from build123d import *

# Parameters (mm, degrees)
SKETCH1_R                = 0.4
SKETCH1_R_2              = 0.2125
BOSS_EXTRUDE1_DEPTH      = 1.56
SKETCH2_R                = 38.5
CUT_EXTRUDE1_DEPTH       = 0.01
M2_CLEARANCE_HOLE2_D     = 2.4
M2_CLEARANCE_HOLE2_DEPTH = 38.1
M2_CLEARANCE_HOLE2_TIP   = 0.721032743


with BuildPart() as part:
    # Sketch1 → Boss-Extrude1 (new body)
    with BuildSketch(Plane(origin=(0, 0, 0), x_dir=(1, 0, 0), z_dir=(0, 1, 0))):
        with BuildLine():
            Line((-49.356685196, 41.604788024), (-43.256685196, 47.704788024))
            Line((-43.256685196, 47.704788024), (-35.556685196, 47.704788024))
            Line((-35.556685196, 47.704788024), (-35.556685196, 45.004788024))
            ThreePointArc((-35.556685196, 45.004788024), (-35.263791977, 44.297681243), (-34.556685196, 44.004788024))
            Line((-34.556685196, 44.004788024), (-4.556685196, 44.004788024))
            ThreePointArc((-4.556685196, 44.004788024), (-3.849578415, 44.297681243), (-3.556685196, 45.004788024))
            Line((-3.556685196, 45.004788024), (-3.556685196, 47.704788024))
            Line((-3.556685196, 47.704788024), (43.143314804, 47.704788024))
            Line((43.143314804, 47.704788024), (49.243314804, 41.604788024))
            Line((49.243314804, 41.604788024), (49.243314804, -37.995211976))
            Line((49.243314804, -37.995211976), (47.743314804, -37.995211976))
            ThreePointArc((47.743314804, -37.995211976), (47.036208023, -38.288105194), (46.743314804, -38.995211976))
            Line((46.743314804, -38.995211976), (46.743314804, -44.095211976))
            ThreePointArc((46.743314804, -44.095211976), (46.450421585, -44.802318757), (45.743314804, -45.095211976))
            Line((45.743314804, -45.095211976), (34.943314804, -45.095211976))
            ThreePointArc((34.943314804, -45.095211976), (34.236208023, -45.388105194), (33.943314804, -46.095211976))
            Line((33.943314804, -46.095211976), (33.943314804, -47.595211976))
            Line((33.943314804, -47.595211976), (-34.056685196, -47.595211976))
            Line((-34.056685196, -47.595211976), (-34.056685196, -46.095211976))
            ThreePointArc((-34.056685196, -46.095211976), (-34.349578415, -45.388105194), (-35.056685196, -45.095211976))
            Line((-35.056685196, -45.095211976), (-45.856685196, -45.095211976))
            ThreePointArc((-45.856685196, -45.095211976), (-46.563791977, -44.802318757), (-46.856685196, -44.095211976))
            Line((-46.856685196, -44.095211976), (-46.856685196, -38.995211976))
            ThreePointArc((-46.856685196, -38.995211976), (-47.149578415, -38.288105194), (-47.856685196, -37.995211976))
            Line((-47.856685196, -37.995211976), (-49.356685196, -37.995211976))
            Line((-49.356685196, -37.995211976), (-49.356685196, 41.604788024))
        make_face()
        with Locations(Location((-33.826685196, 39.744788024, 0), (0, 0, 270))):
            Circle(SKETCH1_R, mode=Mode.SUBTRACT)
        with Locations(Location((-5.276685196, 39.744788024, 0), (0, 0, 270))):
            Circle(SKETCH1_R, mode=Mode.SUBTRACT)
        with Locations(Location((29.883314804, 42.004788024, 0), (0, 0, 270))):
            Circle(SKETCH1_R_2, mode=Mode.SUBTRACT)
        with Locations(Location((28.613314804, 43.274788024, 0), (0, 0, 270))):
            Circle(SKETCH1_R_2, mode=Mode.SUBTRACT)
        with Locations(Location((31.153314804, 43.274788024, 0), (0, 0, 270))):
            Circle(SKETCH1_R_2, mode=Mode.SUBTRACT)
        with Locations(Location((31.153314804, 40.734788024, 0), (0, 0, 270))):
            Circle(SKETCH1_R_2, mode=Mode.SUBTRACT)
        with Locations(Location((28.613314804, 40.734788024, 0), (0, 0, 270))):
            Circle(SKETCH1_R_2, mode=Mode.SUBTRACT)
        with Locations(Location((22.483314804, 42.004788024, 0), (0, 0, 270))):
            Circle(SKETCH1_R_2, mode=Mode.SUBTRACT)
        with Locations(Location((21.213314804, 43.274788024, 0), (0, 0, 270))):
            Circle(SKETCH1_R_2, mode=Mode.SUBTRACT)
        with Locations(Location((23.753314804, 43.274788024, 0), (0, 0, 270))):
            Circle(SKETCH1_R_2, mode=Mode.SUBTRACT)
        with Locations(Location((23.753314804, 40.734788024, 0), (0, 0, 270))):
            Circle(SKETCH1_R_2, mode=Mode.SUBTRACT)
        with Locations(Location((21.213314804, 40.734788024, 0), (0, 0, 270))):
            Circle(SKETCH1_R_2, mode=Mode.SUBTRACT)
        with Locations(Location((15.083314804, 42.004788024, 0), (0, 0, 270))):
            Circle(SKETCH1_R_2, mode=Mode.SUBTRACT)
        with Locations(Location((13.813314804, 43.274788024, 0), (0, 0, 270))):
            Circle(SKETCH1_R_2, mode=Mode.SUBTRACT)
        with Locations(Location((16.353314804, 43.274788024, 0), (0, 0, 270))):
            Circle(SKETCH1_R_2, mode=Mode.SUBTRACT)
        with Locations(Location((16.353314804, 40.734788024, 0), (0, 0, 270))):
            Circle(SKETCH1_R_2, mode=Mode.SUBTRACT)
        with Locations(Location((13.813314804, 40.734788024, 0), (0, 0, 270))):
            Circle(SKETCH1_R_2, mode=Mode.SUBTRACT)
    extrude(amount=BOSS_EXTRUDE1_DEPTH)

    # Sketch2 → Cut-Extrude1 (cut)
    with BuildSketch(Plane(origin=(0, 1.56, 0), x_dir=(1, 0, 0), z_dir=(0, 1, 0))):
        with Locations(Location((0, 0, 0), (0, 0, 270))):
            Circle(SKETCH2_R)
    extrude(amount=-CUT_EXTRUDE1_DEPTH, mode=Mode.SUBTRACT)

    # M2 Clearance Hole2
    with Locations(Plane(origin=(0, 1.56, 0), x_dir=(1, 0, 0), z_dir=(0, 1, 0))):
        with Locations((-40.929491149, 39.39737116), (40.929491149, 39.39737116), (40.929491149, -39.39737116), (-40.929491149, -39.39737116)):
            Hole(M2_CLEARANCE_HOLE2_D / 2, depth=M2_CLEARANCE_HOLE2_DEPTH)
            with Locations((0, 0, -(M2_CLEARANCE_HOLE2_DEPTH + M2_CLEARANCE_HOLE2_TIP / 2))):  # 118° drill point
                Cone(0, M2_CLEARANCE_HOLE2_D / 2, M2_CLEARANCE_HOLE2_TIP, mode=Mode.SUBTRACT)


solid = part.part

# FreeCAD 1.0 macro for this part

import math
import FreeCAD as App
import Part
import Sketcher

doc = App.newDocument("Part")
body = doc.addObject("PartDesign::Body", "Body")

# Sketch on XZ plane
sketch1 = doc.addObject("Sketcher::SketchObject", "Sketch")
body.addObject(sketch1)
sketch1.AttachmentSupport = (doc.XZ_Plane, [""])
sketch1.MapMode = "FlatFace"
sketch1.addGeometry([
    Part.LineSegment(App.Vector(-43.26, -47.7, 0), App.Vector(-49.36, -41.6, 0)),  # 0
    Part.LineSegment(App.Vector(-49.36, -41.6, 0), App.Vector(-49.36, 38, 0)),  # 1
    Part.LineSegment(App.Vector(-49.36, 38, 0), App.Vector(-47.86, 38, 0)),  # 2
    Part.ArcOfCircle(Part.Circle(App.Vector(-47.86, 39, 0), App.Vector(0, 0, 1), 1), math.radians(-90), math.radians(0)),  # 3
    Part.LineSegment(App.Vector(-46.86, 39, 0), App.Vector(-46.86, 44.1, 0)),  # 4
    Part.ArcOfCircle(Part.Circle(App.Vector(-45.86, 44.1, 0), App.Vector(0, 0, 1), 1), math.radians(90), math.radians(180)),  # 5
    Part.LineSegment(App.Vector(-45.86, 45.1, 0), App.Vector(-35.06, 45.1, 0)),  # 6
    Part.ArcOfCircle(Part.Circle(App.Vector(-35.06, 46.1, 0), App.Vector(0, 0, 1), 1), math.radians(-90), math.radians(0)),  # 7
    Part.LineSegment(App.Vector(-34.06, 46.1, 0), App.Vector(-34.06, 47.6, 0)),  # 8
    Part.LineSegment(App.Vector(-34.06, 47.6, 0), App.Vector(33.94, 47.6, 0)),  # 9
    Part.LineSegment(App.Vector(33.94, 47.6, 0), App.Vector(33.94, 46.1, 0)),  # 10
    Part.ArcOfCircle(Part.Circle(App.Vector(34.94, 46.1, 0), App.Vector(0, 0, 1), 1), math.radians(180), math.radians(270)),  # 11
    Part.LineSegment(App.Vector(34.94, 45.1, 0), App.Vector(45.74, 45.1, 0)),  # 12
    Part.ArcOfCircle(Part.Circle(App.Vector(45.74, 44.1, 0), App.Vector(0, 0, 1), 1), math.radians(0), math.radians(90)),  # 13
    Part.LineSegment(App.Vector(46.74, 44.1, 0), App.Vector(46.74, 39, 0)),  # 14
    Part.ArcOfCircle(Part.Circle(App.Vector(47.74, 39, 0), App.Vector(0, 0, 1), 1), math.radians(180), math.radians(270)),  # 15
    Part.LineSegment(App.Vector(47.74, 38, 0), App.Vector(49.24, 38, 0)),  # 16
    Part.LineSegment(App.Vector(49.24, 38, 0), App.Vector(49.24, -41.6, 0)),  # 17
    Part.LineSegment(App.Vector(49.24, -41.6, 0), App.Vector(43.14, -47.7, 0)),  # 18
    Part.LineSegment(App.Vector(43.14, -47.7, 0), App.Vector(-3.56, -47.7, 0)),  # 19
    Part.LineSegment(App.Vector(-3.56, -47.7, 0), App.Vector(-3.56, -45, 0)),  # 20
    Part.ArcOfCircle(Part.Circle(App.Vector(-4.56, -45, 0), App.Vector(0, 0, 1), 1), math.radians(0), math.radians(90)),  # 21
    Part.LineSegment(App.Vector(-4.56, -44, 0), App.Vector(-34.56, -44, 0)),  # 22
    Part.ArcOfCircle(Part.Circle(App.Vector(-34.56, -45, 0), App.Vector(0, 0, 1), 1), math.radians(90), math.radians(180)),  # 23
    Part.LineSegment(App.Vector(-35.56, -45, 0), App.Vector(-35.56, -47.7, 0)),  # 24
    Part.LineSegment(App.Vector(-35.56, -47.7, 0), App.Vector(-43.26, -47.7, 0)),  # 25
    Part.Circle(App.Vector(31.15, -40.73, 0), App.Vector(0, 0, 1), 0.21),  # 26
    Part.Circle(App.Vector(28.61, -40.73, 0), App.Vector(0, 0, 1), 0.21),  # 27
    Part.Circle(App.Vector(23.75, -40.73, 0), App.Vector(0, 0, 1), 0.21),  # 28
    Part.Circle(App.Vector(21.21, -40.73, 0), App.Vector(0, 0, 1), 0.21),  # 29
    Part.Circle(App.Vector(16.35, -40.73, 0), App.Vector(0, 0, 1), 0.21),  # 30
    Part.Circle(App.Vector(13.81, -40.73, 0), App.Vector(0, 0, 1), 0.21),  # 31
    Part.Circle(App.Vector(-5.28, -39.74, 0), App.Vector(0, 0, 1), 0.4),  # 32
    Part.Circle(App.Vector(-33.83, -39.74, 0), App.Vector(0, 0, 1), 0.4),  # 33
    Part.Circle(App.Vector(29.88, -42, 0), App.Vector(0, 0, 1), 0.21),  # 34
    Part.Circle(App.Vector(22.48, -42, 0), App.Vector(0, 0, 1), 0.21),  # 35
    Part.Circle(App.Vector(15.08, -42, 0), App.Vector(0, 0, 1), 0.21),  # 36
    Part.Circle(App.Vector(31.15, -43.27, 0), App.Vector(0, 0, 1), 0.21),  # 37
    Part.Circle(App.Vector(28.61, -43.27, 0), App.Vector(0, 0, 1), 0.21),  # 38
    Part.Circle(App.Vector(23.75, -43.27, 0), App.Vector(0, 0, 1), 0.21),  # 39
    Part.Circle(App.Vector(21.21, -43.27, 0), App.Vector(0, 0, 1), 0.21),  # 40
    Part.Circle(App.Vector(16.35, -43.27, 0), App.Vector(0, 0, 1), 0.21),  # 41
    Part.Circle(App.Vector(13.81, -43.27, 0), App.Vector(0, 0, 1), 0.21),  # 42
], False)
sketch1.addConstraint([
    Sketcher.Constraint("Coincident", 0, 2, 1, 1),
    Sketcher.Constraint("Coincident", 1, 2, 2, 1),
    Sketcher.Constraint("Tangent", 2, 2, 3, 1),
    Sketcher.Constraint("Tangent", 3, 2, 4, 1),
    Sketcher.Constraint("Tangent", 4, 2, 5, 2),
    Sketcher.Constraint("Tangent", 5, 1, 6, 1),
    Sketcher.Constraint("Tangent", 6, 2, 7, 1),
    Sketcher.Constraint("Tangent", 7, 2, 8, 1),
    Sketcher.Constraint("Coincident", 8, 2, 9, 1),
    Sketcher.Constraint("Coincident", 9, 2, 10, 1),
    Sketcher.Constraint("Tangent", 10, 2, 11, 1),
    Sketcher.Constraint("Tangent", 11, 2, 12, 1),
    Sketcher.Constraint("Tangent", 12, 2, 13, 2),
    Sketcher.Constraint("Tangent", 13, 1, 14, 1),
    Sketcher.Constraint("Tangent", 14, 2, 15, 1),
    Sketcher.Constraint("Tangent", 15, 2, 16, 1),
    Sketcher.Constraint("Coincident", 16, 2, 17, 1),
    Sketcher.Constraint("Coincident", 17, 2, 18, 1),
    Sketcher.Constraint("Coincident", 18, 2, 19, 1),
    Sketcher.Constraint("Coincident", 19, 2, 20, 1),
    Sketcher.Constraint("Tangent", 20, 2, 21, 1),
    Sketcher.Constraint("Tangent", 21, 2, 22, 1),
    Sketcher.Constraint("Tangent", 22, 2, 23, 1),
    Sketcher.Constraint("Tangent", 23, 2, 24, 1),
    Sketcher.Constraint("Coincident", 24, 2, 25, 1),
    Sketcher.Constraint("Coincident", 25, 2, 0, 1),
    Sketcher.Constraint("Vertical", 1),
    Sketcher.Constraint("Horizontal", 2),
    Sketcher.Constraint("Vertical", 4),
    Sketcher.Constraint("Horizontal", 6),
    Sketcher.Constraint("Vertical", 8),
    Sketcher.Constraint("Horizontal", 9),
    Sketcher.Constraint("Vertical", 10),
    Sketcher.Constraint("Horizontal", 12),
    Sketcher.Constraint("Vertical", 14),
    Sketcher.Constraint("Horizontal", 16),
    Sketcher.Constraint("Vertical", 17),
    Sketcher.Constraint("Horizontal", 19),
    Sketcher.Constraint("Vertical", 20),
    Sketcher.Constraint("Horizontal", 22),
    Sketcher.Constraint("Vertical", 24),
    Sketcher.Constraint("Horizontal", 25),
    Sketcher.Constraint("Equal", 3, 5),
    Sketcher.Constraint("Equal", 5, 7),
    Sketcher.Constraint("Equal", 7, 11),
    Sketcher.Constraint("Equal", 11, 13),
    Sketcher.Constraint("Equal", 13, 15),
    Sketcher.Constraint("Equal", 15, 21),
    Sketcher.Constraint("Equal", 21, 23),
    Sketcher.Constraint("Equal", 26, 27),
    Sketcher.Constraint("Equal", 27, 28),
    Sketcher.Constraint("Equal", 28, 29),
    Sketcher.Constraint("Equal", 29, 30),
    Sketcher.Constraint("Equal", 30, 31),
    Sketcher.Constraint("Equal", 32, 33),
    Sketcher.Constraint("Equal", 31, 34),
    Sketcher.Constraint("Equal", 34, 35),
    Sketcher.Constraint("Equal", 35, 36),
    Sketcher.Constraint("Equal", 36, 37),
    Sketcher.Constraint("Equal", 37, 38),
    Sketcher.Constraint("Equal", 38, 39),
    Sketcher.Constraint("Equal", 39, 40),
    Sketcher.Constraint("Equal", 40, 41),
    Sketcher.Constraint("Equal", 41, 42),
    Sketcher.Constraint("Perpendicular", 0, 18),
    Sketcher.Constraint("Horizontal", 7, 3, 11, 3),
    Sketcher.Constraint("Horizontal", 3, 3, 15, 3),
    Sketcher.Constraint("Horizontal", 26, 3, 27, 3),
    Sketcher.Constraint("Horizontal", 27, 3, 28, 3),
    Sketcher.Constraint("Horizontal", 28, 3, 29, 3),
    Sketcher.Constraint("Horizontal", 29, 3, 30, 3),
    Sketcher.Constraint("Horizontal", 30, 3, 31, 3),
    Sketcher.Constraint("Horizontal", 32, 3, 33, 3),
    Sketcher.Constraint("Horizontal", 34, 3, 35, 3),
    Sketcher.Constraint("Horizontal", 35, 3, 36, 3),
    Sketcher.Constraint("Horizontal", 37, 3, 38, 3),
    Sketcher.Constraint("Horizontal", 38, 3, 39, 3),
    Sketcher.Constraint("Horizontal", 39, 3, 40, 3),
    Sketcher.Constraint("Horizontal", 40, 3, 41, 3),
    Sketcher.Constraint("Horizontal", 41, 3, 42, 3),
    Sketcher.Constraint("Horizontal", 0, 2, 17, 2),
    Sketcher.Constraint("Horizontal", 19, 2, 24, 2),
    Sketcher.Constraint("Vertical", 26, 3, 37, 3),
    Sketcher.Constraint("Vertical", 27, 3, 38, 3),
    Sketcher.Constraint("Vertical", 28, 3, 39, 3),
    Sketcher.Constraint("Vertical", 29, 3, 40, 3),
    Sketcher.Constraint("Vertical", 30, 3, 41, 3),
    Sketcher.Constraint("Vertical", 31, 3, 42, 3),
    Sketcher.Constraint("Equal", 6, 12),
    Sketcher.Constraint("Equal", 2, 16),
    Sketcher.Constraint("Equal", 16, 8),
    Sketcher.Constraint("Equal", 0, 18),
    Sketcher.Constraint("Radius", 3, 1.0),
    Sketcher.Constraint("Diameter", 32, 0.8),
    Sketcher.Constraint("DistanceX", 9, 1, 9, 2, 68.0),
    Sketcher.Constraint("DistanceX", 22, 2, 22, 1, 30.0),
    Sketcher.Constraint("Diameter", 26, 0.425),
    Sketcher.Constraint("DistanceX", 2, 1, 2, 2, 1.5),
    Sketcher.Constraint("DistanceX", 6, 1, 6, 2, 10.8),
    Sketcher.Constraint("DistanceX", 19, 2, 19, 1, 46.7),
    Sketcher.Constraint("DistanceX", 25, 2, 25, 1, 7.7),
    Sketcher.Constraint("DistanceY", 1, 1, 1, 2, 79.6),
    Sketcher.Constraint("DistanceY", 4, 1, 4, 2, 5.1),
    Sketcher.Constraint("DistanceY", 20, 1, 20, 2, 2.7),
    Sketcher.Constraint("DistanceX", 28, 3, 26, 3, 7.4),
    Sketcher.Constraint("DistanceX", 29, 3, 27, 3, 7.4),
    Sketcher.Constraint("DistanceX", 30, 3, 28, 3, 7.4),
    Sketcher.Constraint("DistanceX", 31, 3, 29, 3, 7.4),
    Sketcher.Constraint("DistanceX", 35, 3, 34, 3, 7.4),
    Sketcher.Constraint("DistanceX", 36, 3, 35, 3, 7.4),
    Sketcher.Constraint("DistanceY", 34, 3, 17, 2, 0.4),
    Sketcher.Constraint("DistanceX", 21, 3, 26, 3, 35.71),
    Sketcher.Constraint("DistanceY", 21, 3, 26, 3, 4.27),
    Sketcher.Constraint("DistanceX", 27, 3, 26, 3, 2.54),
    Sketcher.Constraint("DistanceX", 32, 3, 21, 3, 0.72),
    Sketcher.Constraint("DistanceY", 21, 3, 32, 3, 5.26),
    Sketcher.Constraint("DistanceX", 23, 3, 33, 3, 0.73),
    Sketcher.Constraint("DistanceX", 34, 3, 26, 3, 1.27),
    Sketcher.Constraint("DistanceY", 37, 3, 34, 3, 1.27),
    Sketcher.Constraint("DistanceY", -1, 1, 3, 3, 38.995212),
    Sketcher.Constraint("DistanceX", 3, 3, -1, 1, 47.856685),
])
pad1 = doc.addObject("PartDesign::Pad", "Pad")
body.addObject(pad1)
pad1.Profile = sketch1
pad1.Length = 1.56
pad1.Reversed = True

# Sketch on XZ plane
sketch2 = doc.addObject("Sketcher::SketchObject", "Sketch001")
body.addObject(sketch2)
sketch2.AttachmentSupport = (doc.XZ_Plane, [""])
sketch2.MapMode = "FlatFace"
sketch2.AttachmentOffset = App.Placement(App.Vector(0, 0, -1.56), App.Rotation())
sketch2.addGeometry(Part.Circle(App.Vector(0, 0, 0), App.Vector(0, 0, 1), 38), False)
sketch2.addConstraint([
    Sketcher.Constraint("Coincident", 0, 3, -1, 1),
    Sketcher.Constraint("Diameter", 0, 77.0),
])
pocket1 = doc.addObject("PartDesign::Pocket", "Pocket")
body.addObject(pocket1)
pocket1.Profile = sketch2
pocket1.Length = 0.01
pocket1.Reversed = True

# Sketch on XZ plane
sketch3 = doc.addObject("Sketcher::SketchObject", "Sketch002")
body.addObject(sketch3)
sketch3.AttachmentSupport = (doc.XZ_Plane, [""])
sketch3.MapMode = "FlatFace"
sketch3.AttachmentOffset = App.Placement(App.Vector(0, 0, -1.56), App.Rotation())
sketch3.addGeometry([
    Part.Circle(App.Vector(-40.9, -39.4, 0), App.Vector(0, 0, 1), 1.2),
    Part.Circle(App.Vector(40.9, -39.4, 0), App.Vector(0, 0, 1), 1.2),
    Part.Circle(App.Vector(40.9, 39.4, 0), App.Vector(0, 0, 1), 1.2),
    Part.Circle(App.Vector(-40.9, 39.4, 0), App.Vector(0, 0, 1), 1.2),
], False)
sketch3.addConstraint([
    Sketcher.Constraint("Equal", 0, 1),
    Sketcher.Constraint("Equal", 1, 2),
    Sketcher.Constraint("Equal", 2, 3),
    Sketcher.Constraint("Symmetric", 0, 3, 2, 3, -1, 1),
    Sketcher.Constraint("Symmetric", 1, 3, 3, 3, -1, 1),
    Sketcher.Constraint("Symmetric", 0, 3, 1, 3, -2),
    Sketcher.Constraint("Diameter", 0, 2.4),
    Sketcher.Constraint("DistanceX", 0, 3, -1, 1, 40.929491),
    Sketcher.Constraint("DistanceY", 0, 3, -1, 1, 39.397371),
])
doc.recompute()
hole = doc.addObject("PartDesign::Hole", "Hole")
body.addObject(hole)
hole.Profile = sketch3
hole.ThreadType = "None"
hole.Diameter = 2.4
hole.DepthType = "Dimension"
hole.Depth = 38.1
hole.DrillPoint = "Angled"
hole.DrillPointAngle = 118
hole.Reversed = True

doc.recompute()
